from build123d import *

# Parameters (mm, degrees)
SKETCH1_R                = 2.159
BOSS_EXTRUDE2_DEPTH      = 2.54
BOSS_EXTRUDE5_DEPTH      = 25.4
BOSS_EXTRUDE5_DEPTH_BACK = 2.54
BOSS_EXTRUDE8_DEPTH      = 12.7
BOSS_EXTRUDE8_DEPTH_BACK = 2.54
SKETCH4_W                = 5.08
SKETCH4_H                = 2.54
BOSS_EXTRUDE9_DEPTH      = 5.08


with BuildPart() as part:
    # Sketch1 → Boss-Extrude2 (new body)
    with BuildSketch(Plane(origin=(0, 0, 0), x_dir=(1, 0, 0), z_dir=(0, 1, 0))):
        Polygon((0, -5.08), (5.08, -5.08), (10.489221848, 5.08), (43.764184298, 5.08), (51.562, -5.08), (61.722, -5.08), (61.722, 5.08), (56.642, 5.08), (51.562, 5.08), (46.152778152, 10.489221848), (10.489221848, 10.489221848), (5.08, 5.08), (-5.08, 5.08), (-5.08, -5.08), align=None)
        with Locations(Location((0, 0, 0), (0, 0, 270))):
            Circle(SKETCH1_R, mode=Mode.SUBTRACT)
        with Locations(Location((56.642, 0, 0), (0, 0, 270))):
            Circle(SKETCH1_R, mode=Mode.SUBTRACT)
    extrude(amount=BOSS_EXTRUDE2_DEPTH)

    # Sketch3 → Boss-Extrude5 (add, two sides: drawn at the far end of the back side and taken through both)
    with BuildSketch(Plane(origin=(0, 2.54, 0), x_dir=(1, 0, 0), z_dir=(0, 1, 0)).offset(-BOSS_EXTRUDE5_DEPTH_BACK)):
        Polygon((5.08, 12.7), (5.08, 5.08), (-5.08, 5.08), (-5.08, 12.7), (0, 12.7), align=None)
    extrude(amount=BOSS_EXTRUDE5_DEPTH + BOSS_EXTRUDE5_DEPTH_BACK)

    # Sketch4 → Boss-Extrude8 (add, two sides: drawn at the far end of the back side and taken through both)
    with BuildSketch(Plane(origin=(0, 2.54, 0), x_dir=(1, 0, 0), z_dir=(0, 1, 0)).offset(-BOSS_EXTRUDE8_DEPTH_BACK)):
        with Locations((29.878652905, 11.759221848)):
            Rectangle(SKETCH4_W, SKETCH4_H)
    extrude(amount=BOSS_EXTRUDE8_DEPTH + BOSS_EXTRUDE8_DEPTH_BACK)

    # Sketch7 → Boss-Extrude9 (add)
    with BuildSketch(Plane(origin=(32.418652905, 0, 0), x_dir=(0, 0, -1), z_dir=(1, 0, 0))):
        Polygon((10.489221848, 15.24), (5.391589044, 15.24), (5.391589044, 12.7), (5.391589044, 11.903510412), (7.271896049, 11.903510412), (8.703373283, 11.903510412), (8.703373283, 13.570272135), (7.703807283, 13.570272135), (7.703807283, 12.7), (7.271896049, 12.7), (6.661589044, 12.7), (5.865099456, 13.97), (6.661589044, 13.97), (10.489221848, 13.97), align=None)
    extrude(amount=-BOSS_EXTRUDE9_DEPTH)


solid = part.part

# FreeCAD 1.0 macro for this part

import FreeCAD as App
import Part
import Sketcher

V = App.Vector
Q = App.Units.Quantity


def add_polygon(sketch, points):
    """Adds a closed chain of lines whose ends are joined by coincident constraints."""
    first, n = sketch.GeometryCount, len(points)
    for a, b in zip(points, points[1:] + points[:1]):
        sketch.addGeometry(Part.LineSegment(App.Vector(*a, 0), App.Vector(*b, 0)), False)
    for i in range(n):
        sketch.addConstraint(Sketcher.Constraint("Coincident", first + i, 2, first + (i + 1) % n, 1))

doc = App.newDocument("Part")
params = doc.addObject("Spreadsheet::Sheet", "Params")
for row, (alias, value) in enumerate([
    ("sketch1_diameter", "0.17 in"),
    ("sketch1_width", "0.4 in"),
    ("pad1_length", "0.1 in"),
    ("sketch2_width", "0.4 in"),
    ("sketch2_height", "0.3 in"),
    ("pad2_length", "1 in"),
    ("pad2_length2", "0.1 in"),
    ("sketch3_width", "0.2 in"),
    ("sketch3_height", "0.1 in"),
    ("pad3_length", "0.5 in"),
    ("pad3_length2", "0.1 in"),
    ("sketch4_width", "0.05 in"),
    ("pad4_length", "0.2 in"),
], start=1):
    params.set(f"A{row}", alias)
    params.set(f"B{row}", "=" + value)
    params.setAlias(f"B{row}", alias)

body = doc.addObject("PartDesign::Body", "Body")

sketch1 = body.newObject("Sketcher::SketchObject", "Sketch")
sketch1.AttachmentSupport = (doc.getObject("XZ_Plane"), [""])
sketch1.MapMode = "FlatFace"
add_polygon(sketch1, [(5.08, 5.08), (10.489222, -5.08), (43.764184, -5.08), (51.562, 5.08), (61.722, 5.08), (61.722, -5.08), (51.562, -5.08), (46.152778, -10.489222), (10.489222, -10.489222), (5.08, -5.08), (-5.08, -5.08), (-5.08, 5.08)])
sketch1.addGeometry(Part.Circle(V(0, 0, 0), V(0, 0, 1), 2.159), False)
sketch1.addGeometry(Part.Circle(V(56.642, 0, 0), V(0, 0, 1), 2.159), False)
sketch1.addConstraint([
    Sketcher.Constraint("Horizontal", 1),
    Sketcher.Constraint("Horizontal", 3),
    Sketcher.Constraint("Vertical", 4),
    Sketcher.Constraint("Horizontal", 5),
    Sketcher.Constraint("Horizontal", 7),
    Sketcher.Constraint("Horizontal", 9),
    Sketcher.Constraint("Vertical", 10),
    Sketcher.Constraint("Horizontal", 11),
    Sketcher.Constraint("Coincident", 12, 3, -1, 1),
    Sketcher.Constraint("Equal", 12, 13),
    Sketcher.Constraint("Symmetric", 8, 2, 10, 2, -1, 1),
    Sketcher.Constraint("Symmetric", 2, 2, 5, 2, -1),
    Sketcher.Constraint("PointOnObject", 13, 3, -1),
    Sketcher.Constraint("Perpendicular", 6, 8),
    Sketcher.Constraint("Horizontal", 1, 2, 4, 2),
    Sketcher.Constraint("Horizontal", 5, 2, 8, 2),
    Sketcher.Constraint("Vertical", 0, 2, 7, 2),
    Sketcher.Constraint("Vertical", 8, 2, 11, 2),
    Sketcher.Constraint("Equal", 5, 9),
    Sketcher.Constraint("Equal", 11, 4),
    Sketcher.Constraint("Equal", 6, 8),
    Sketcher.Constraint("Diameter", 12, Q("0.17 in")),
    Sketcher.Constraint("DistanceX", 3, 1, 3, 2, Q("0.4 in")),
    Sketcher.Constraint("DistanceX", 2, 2, 13, 3, Q("0.2 in")),
    Sketcher.Constraint("DistanceX", -1, 1, 13, 3, Q("2.23 in")),
    Sketcher.Constraint("Distance", 2, 12.807479),
    Sketcher.Constraint("DistanceX", 1, 1, 1, 2, 33.274962),
])
sketch1.setExpression("Constraints[33]", "Params.sketch1_diameter")
sketch1.setExpression("Constraints[34]", "Params.sketch1_width")
pad1 = body.newObject("PartDesign::Pad", "Pad")
pad1.Profile = sketch1
pad1.setExpression("Length", "Params.pad1_length")
pad1.Reversed = True

sketch2 = body.newObject("Sketcher::SketchObject", "Sketch001")
sketch2.AttachmentSupport = (doc.getObject("XZ_Plane"), [""])
sketch2.MapMode = "FlatFace"
sketch2.AttachmentOffset = App.Placement(V(0, 0, -0.1 * 25.4), App.Rotation())
add_polygon(sketch2, [(5.08, -5.08), (5.08, -12.7), (-5.08, -12.7), (-5.08, -5.08)])
sketch2.addConstraint([
    Sketcher.Constraint("Vertical", 0),
    Sketcher.Constraint("Horizontal", 1),
    Sketcher.Constraint("Vertical", 2),
    Sketcher.Constraint("Horizontal", 3),
    Sketcher.Constraint("DistanceX", 1, 2, 1, 1, Q("0.4 in")),
    Sketcher.Constraint("DistanceY", 0, 2, 0, 1, Q("0.3 in")),
    Sketcher.Constraint("DistanceX", -1, 1, 0, 2, Q("0.2 in")),
    Sketcher.Constraint("DistanceY", 0, 2, -1, 1, Q("0.5 in")),
])
sketch2.setExpression("Constraints[8]", "Params.sketch2_width")
sketch2.setExpression("Constraints[9]", "Params.sketch2_height")
pad2 = body.newObject("PartDesign::Pad", "Pad001")
pad2.Profile = sketch2
pad2.Type = "TwoLengths"
pad2.setExpression("Length", "Params.pad2_length")
pad2.setExpression("Length2", "Params.pad2_length2")
pad2.Reversed = True

sketch3 = body.newObject("Sketcher::SketchObject", "Sketch002")
sketch3.AttachmentSupport = (doc.getObject("XZ_Plane"), [""])
sketch3.MapMode = "FlatFace"
sketch3.AttachmentOffset = App.Placement(V(0, 0, -0.1 * 25.4), App.Rotation())
add_polygon(sketch3, [(27.338653, -13.029222), (27.338653, -10.489222), (32.418653, -10.489222), (32.418653, -13.029222)])
sketch3.addConstraint([
    Sketcher.Constraint("Vertical", 0),
    Sketcher.Constraint("Horizontal", 1),
    Sketcher.Constraint("Vertical", 2),
    Sketcher.Constraint("Horizontal", 3),
    Sketcher.Constraint("DistanceX", 1, 1, 1, 2, Q("0.2 in")),
    Sketcher.Constraint("DistanceY", 0, 1, 0, 2, Q("0.1 in")),
    Sketcher.Constraint("DistanceY", 0, 2, -1, 1, 10.489222),
    Sketcher.Constraint("DistanceX", -1, 1, 0, 2, 27.338653),
])
sketch3.setExpression("Constraints[8]", "Params.sketch3_width")
sketch3.setExpression("Constraints[9]", "Params.sketch3_height")
pad3 = body.newObject("PartDesign::Pad", "Pad002")
pad3.Profile = sketch3
pad3.Type = "TwoLengths"
pad3.setExpression("Length", "Params.pad3_length")
pad3.setExpression("Length2", "Params.pad3_length2")
pad3.Reversed = True

sketch4 = body.newObject("Sketcher::SketchObject", "Sketch003")
sketch4.AttachmentSupport = (doc.getObject("YZ_Plane"), [""])
sketch4.MapMode = "FlatFace"
sketch4.AttachmentOffset = App.Placement(V(0, 0, 32.418653), App.Rotation())
add_polygon(sketch4, [(15.24, -10.489222), (15.24, -5.391589), (11.90351, -5.391589), (11.90351, -8.703373), (13.570272, -8.703373), (13.570272, -7.703807), (12.7, -7.703807), (12.7, -6.661589), (13.97, -5.865099), (13.97, -10.489222)])
sketch4.addConstraint([
    Sketcher.Constraint("Vertical", 0),
    Sketcher.Constraint("Horizontal", 1),
    Sketcher.Constraint("Vertical", 2),
    Sketcher.Constraint("Horizontal", 3),
    Sketcher.Constraint("Vertical", 4),
    Sketcher.Constraint("Horizontal", 5),
    Sketcher.Constraint("Vertical", 6),
    Sketcher.Constraint("Vertical", 8),
    Sketcher.Constraint("Horizontal", 9),
    Sketcher.Constraint("DistanceX", 9, 1, 9, 2, Q("0.05 in")),
    Sketcher.Constraint("DistanceX", -1, 1, 0, 2, Q("0.6 in")),
    Sketcher.Constraint("DistanceX", -1, 1, 5, 2, Q("0.5 in")),
    Sketcher.Constraint("DistanceY", 6, 2, 1, 2, Q("0.05 in")),
    Sketcher.Constraint("Distance", 7, 1.499098),
    Sketcher.Constraint("DistanceX", 1, 2, 1, 1, 3.33649),
    Sketcher.Constraint("DistanceX", 3, 1, 3, 2, 1.666762),
    Sketcher.Constraint("DistanceY", 6, 1, 6, 2, 1.042218),
    Sketcher.Constraint("DistanceY", 7, 2, -1, 1, 5.865099),
    Sketcher.Constraint("DistanceY", 0, 1, 0, 2, 5.097633),
    Sketcher.Constraint("DistanceY", 2, 2, 2, 1, 3.311784),
])
sketch4.setExpression("Constraints[19]", "Params.sketch4_width")
pad4 = body.newObject("PartDesign::Pad", "Pad003")
pad4.Profile = sketch4
pad4.setExpression("Length", "Params.pad4_length")
pad4.Reversed = True

doc.recompute()
